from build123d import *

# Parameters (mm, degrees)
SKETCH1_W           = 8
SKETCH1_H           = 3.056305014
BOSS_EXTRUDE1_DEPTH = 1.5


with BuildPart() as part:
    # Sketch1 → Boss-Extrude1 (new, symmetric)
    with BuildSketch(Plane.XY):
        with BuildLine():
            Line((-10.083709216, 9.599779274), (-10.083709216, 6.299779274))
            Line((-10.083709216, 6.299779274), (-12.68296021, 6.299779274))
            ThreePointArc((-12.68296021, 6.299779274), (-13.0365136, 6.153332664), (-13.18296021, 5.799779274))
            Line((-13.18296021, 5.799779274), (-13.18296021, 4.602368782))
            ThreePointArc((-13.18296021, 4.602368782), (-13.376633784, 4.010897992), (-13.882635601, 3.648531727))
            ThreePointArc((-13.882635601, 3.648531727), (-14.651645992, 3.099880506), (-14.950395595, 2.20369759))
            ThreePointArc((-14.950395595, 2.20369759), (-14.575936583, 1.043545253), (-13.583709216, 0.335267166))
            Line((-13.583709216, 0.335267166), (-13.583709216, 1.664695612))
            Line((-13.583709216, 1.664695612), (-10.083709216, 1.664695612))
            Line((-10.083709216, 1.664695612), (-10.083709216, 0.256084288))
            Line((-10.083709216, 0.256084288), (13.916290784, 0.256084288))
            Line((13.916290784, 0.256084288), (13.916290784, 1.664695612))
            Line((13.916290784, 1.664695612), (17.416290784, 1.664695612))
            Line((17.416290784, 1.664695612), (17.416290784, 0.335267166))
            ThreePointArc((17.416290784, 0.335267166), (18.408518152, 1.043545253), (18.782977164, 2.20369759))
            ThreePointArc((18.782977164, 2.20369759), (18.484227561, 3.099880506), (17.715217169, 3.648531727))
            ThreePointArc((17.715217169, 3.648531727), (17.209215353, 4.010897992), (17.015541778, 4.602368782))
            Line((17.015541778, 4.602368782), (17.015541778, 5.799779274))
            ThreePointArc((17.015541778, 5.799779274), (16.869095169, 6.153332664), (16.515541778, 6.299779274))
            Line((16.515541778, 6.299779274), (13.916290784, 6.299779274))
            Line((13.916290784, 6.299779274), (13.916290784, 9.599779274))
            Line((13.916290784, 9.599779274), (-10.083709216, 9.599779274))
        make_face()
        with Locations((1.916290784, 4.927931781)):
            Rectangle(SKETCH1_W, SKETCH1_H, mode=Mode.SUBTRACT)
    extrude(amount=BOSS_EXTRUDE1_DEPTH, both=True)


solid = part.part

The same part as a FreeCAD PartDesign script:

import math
import FreeCAD as App
import Part
import Sketcher
from FreeCAD import Vector

doc = App.newDocument("Part")
body = doc.addObject("PartDesign::Body", "Body")

# Sketch on XY plane
sketch1 = body.newObject("Sketcher::SketchObject", "Sketch")
sketch1.AttachmentSupport = (doc.getObject("XY_Plane"), [""])
sketch1.MapMode = "FlatFace"
sketch1.addGeometry([
    Part.LineSegment(Vector(-10.083709, 9.599779, 0), Vector(-10.083709, 6.299779, 0)),  # 0
    Part.LineSegment(Vector(-10.083709, 6.299779, 0), Vector(-12.68296, 6.299779, 0)),  # 1
    Part.ArcOfCircle(Part.Circle(Vector(-12.68296, 5.799779, 0), Vector(0, 0, 1), 0.5), math.radians(90), math.radians(180)),  # 2
    Part.LineSegment(Vector(-13.18296, 5.799779, 0), Vector(-13.18296, 4.602369, 0)),  # 3
    Part.ArcOfCircle(Part.Circle(Vector(-14.18296, 4.602369, 0), Vector(0, 0, 1), 1), math.radians(-72.522899), math.radians(0)),  # 4
    Part.ArcOfCircle(Part.Circle(Vector(-13.4243, 2.192848, 0), Vector(0, 0, 1), 1.526134), math.radians(107.477101), math.radians(179.592683)),  # 5
    Part.ArcOfCircle(Part.Circle(Vector(-13.008735, 2.189894, 0), Vector(0, 0, 1), 1.94171), math.radians(179.592683), math.radians(252.775442)),  # 6
    Part.LineSegment(Vector(-13.583709, 0.335267, 0), Vector(-13.583709, 1.664696, 0)),  # 7
    Part.LineSegment(Vector(-13.583709, 1.664696, 0), Vector(-10.083709, 1.664696, 0)),  # 8
    Part.LineSegment(Vector(-10.083709, 1.664696, 0), Vector(-10.083709, 0.256084, 0)),  # 9
    Part.LineSegment(Vector(-10.083709, 0.256084, 0), Vector(13.916291, 0.256084, 0)),  # 10
    Part.LineSegment(Vector(13.916291, 0.256084, 0), Vector(13.916291, 1.664696, 0)),  # 11
    Part.LineSegment(Vector(13.916291, 1.664696, 0), Vector(17.416291, 1.664696, 0)),  # 12
    Part.LineSegment(Vector(17.416291, 1.664696, 0), Vector(17.416291, 0.335267, 0)),  # 13
    Part.ArcOfCircle(Part.Circle(Vector(16.841317, 2.189894, 0), Vector(0, 0, 1), 1.94171), math.radians(-72.775442), math.radians(0.407317)),  # 14
    Part.ArcOfCircle(Part.Circle(Vector(17.256882, 2.192848, 0), Vector(0, 0, 1), 1.526134), math.radians(0.407317), math.radians(72.522899)),  # 15
    Part.ArcOfCircle(Part.Circle(Vector(18.015542, 4.602369, 0), Vector(0, 0, 1), 1), math.radians(-180), math.radians(-107.477101)),  # 16
    Part.LineSegment(Vector(17.015542, 4.602369, 0), Vector(17.015542, 5.799779, 0)),  # 17
    Part.ArcOfCircle(Part.Circle(Vector(16.515542, 5.799779, 0), Vector(0, 0, 1), 0.5), math.radians(0), math.radians(90)),  # 18
    Part.LineSegment(Vector(16.515542, 6.299779, 0), Vector(13.916291, 6.299779, 0)),  # 19
    Part.LineSegment(Vector(13.916291, 6.299779, 0), Vector(13.916291, 9.599779, 0)),  # 20
    Part.LineSegment(Vector(13.916291, 9.599779, 0), Vector(-10.083709, 9.599779, 0)),  # 21
    Part.LineSegment(Vector(5.916291, 3.399779, 0), Vector(-2.083709, 3.399779, 0)),  # 22
    Part.LineSegment(Vector(-2.083709, 3.399779, 0), Vector(-2.083709, 6.456084, 0)),  # 23
    Part.LineSegment(Vector(-2.083709, 6.456084, 0), Vector(5.916291, 6.456084, 0)),  # 24
    Part.LineSegment(Vector(5.916291, 6.456084, 0), Vector(5.916291, 3.399779, 0)),  # 25
], False)
sketch1.addConstraint([
    Sketcher.Constraint("Coincident", 0, 2, 1, 1),
    Sketcher.Constraint("Tangent", 1, 2, 2, 1),
    Sketcher.Constraint("Tangent", 2, 2, 3, 1),
    Sketcher.Constraint("Tangent", 3, 2, 4, 2),
    Sketcher.Constraint("Tangent", 4, 1, 5, 1),
    Sketcher.Constraint("Tangent", 5, 2, 6, 1),
    Sketcher.Constraint("Coincident", 6, 2, 7, 1),
    Sketcher.Constraint("Coincident", 7, 2, 8, 1),
    Sketcher.Constraint("Coincident", 8, 2, 9, 1),
    Sketcher.Constraint("Coincident", 9, 2, 10, 1),
    Sketcher.Constraint("Coincident", 10, 2, 11, 1),
    Sketcher.Constraint("Coincident", 11, 2, 12, 1),
    Sketcher.Constraint("Coincident", 12, 2, 13, 1),
    Sketcher.Constraint("Coincident", 13, 2, 14, 1),
    Sketcher.Constraint("Tangent", 14, 2, 15, 1),
    Sketcher.Constraint("Tangent", 15, 2, 16, 2),
    Sketcher.Constraint("Tangent", 16, 1, 17, 1),
    Sketcher.Constraint("Tangent", 17, 2, 18, 1),
    Sketcher.Constraint("Tangent", 18, 2, 19, 1),
    Sketcher.Constraint("Coincident", 19, 2, 20, 1),
    Sketcher.Constraint("Coincident", 20, 2, 21, 1),
    Sketcher.Constraint("Coincident", 21, 2, 0, 1),
    Sketcher.Constraint("Coincident", 22, 2, 23, 1),
    Sketcher.Constraint("Coincident", 23, 2, 24, 1),
    Sketcher.Constraint("Coincident", 24, 2, 25, 1),
    Sketcher.Constraint("Coincident", 25, 2, 22, 1),
    Sketcher.Constraint("Vertical", 0),
    Sketcher.Constraint("Horizontal", 1),
    Sketcher.Constraint("Vertical", 3),
    Sketcher.Constraint("Vertical", 7),
    Sketcher.Constraint("Horizontal", 8),
    Sketcher.Constraint("Vertical", 9),
    Sketcher.Constraint("Horizontal", 10),
    Sketcher.Constraint("Vertical", 11),
    Sketcher.Constraint("Horizontal", 12),
    Sketcher.Constraint("Vertical", 13),
    Sketcher.Constraint("Vertical", 17),
    Sketcher.Constraint("Horizontal", 19),
    Sketcher.Constraint("Vertical", 20),
    Sketcher.Constraint("Horizontal", 21),
    Sketcher.Constraint("Horizontal", 22),
    Sketcher.Constraint("Vertical", 23),
    Sketcher.Constraint("Horizontal", 24),
    Sketcher.Constraint("Vertical", 25),
    Sketcher.Constraint("Equal", 6, 14),
    Sketcher.Constraint("Equal", 5, 15),
    Sketcher.Constraint("Equal", 4, 16),
    Sketcher.Constraint("Equal", 2, 18),
    Sketcher.Constraint("Horizontal", 6, 3, 14, 3),
    Sketcher.Constraint("Horizontal", 5, 3, 15, 3),
    Sketcher.Constraint("Horizontal", 4, 3, 16, 3),
    Sketcher.Constraint("Horizontal", 2, 3, 18, 3),
    Sketcher.Constraint("Horizontal", 8, 2, 11, 2),
    Sketcher.Constraint("Horizontal", 6, 2, 13, 2),
    Sketcher.Constraint("Vertical", 0, 2, 8, 2),
    Sketcher.Constraint("Vertical", 11, 2, 19, 2),
    Sketcher.Constraint("Equal", 8, 12),
    Sketcher.Constraint("Radius", 4, 1.0),
    Sketcher.Constraint("Radius", 2, 0.5),
    Sketcher.Constraint("DistanceX", 10, 1, 10, 2, 24.0),
    Sketcher.Constraint("DistanceX", 22, 2, 22, 1, 8.0),
    Sketcher.Constraint("DistanceX", 8, 1, 8, 2, 3.5),
    Sketcher.Constraint("DistanceY", 0, 2, 0, 1, 3.3),
    Sketcher.Constraint("DistanceX", 8, 2, 22, 2, 8.0),
    Sketcher.Constraint("DistanceY", 22, 2, 0, 2, 2.9),
    Sketcher.Constraint("DistanceY", 9, 2, 23, 2, 6.2),
    Sketcher.Constraint("Radius", 6, 1.94171),
    Sketcher.Constraint("Radius", 5, 1.526134),
    Sketcher.Constraint("DistanceY", 7, 2, 5, 2, 0.539002),
    Sketcher.Constraint("DistanceX", 1, 2, 1, 1, 2.599251),
    Sketcher.Constraint("DistanceY", 3, 2, 3, 1, 1.19741),
    Sketcher.Constraint("DistanceY", 7, 1, 7, 2, 1.329428),
    Sketcher.Constraint("DistanceY", 9, 2, 9, 1, 1.408611),
    Sketcher.Constraint("DistanceX", 5, 3, -1, 1, 13.4243),
    Sketcher.Constraint("DistanceX", 4, 1, 6, 3, 0.873901),
    Sketcher.Constraint("DistanceY", -1, 1, 2, 3, 5.799779),
])
pad1 = body.newObject("PartDesign::Pad", "Pad")
pad1.Profile = sketch1
pad1.Length = 3
pad1.Midplane = True

doc.recompute()
